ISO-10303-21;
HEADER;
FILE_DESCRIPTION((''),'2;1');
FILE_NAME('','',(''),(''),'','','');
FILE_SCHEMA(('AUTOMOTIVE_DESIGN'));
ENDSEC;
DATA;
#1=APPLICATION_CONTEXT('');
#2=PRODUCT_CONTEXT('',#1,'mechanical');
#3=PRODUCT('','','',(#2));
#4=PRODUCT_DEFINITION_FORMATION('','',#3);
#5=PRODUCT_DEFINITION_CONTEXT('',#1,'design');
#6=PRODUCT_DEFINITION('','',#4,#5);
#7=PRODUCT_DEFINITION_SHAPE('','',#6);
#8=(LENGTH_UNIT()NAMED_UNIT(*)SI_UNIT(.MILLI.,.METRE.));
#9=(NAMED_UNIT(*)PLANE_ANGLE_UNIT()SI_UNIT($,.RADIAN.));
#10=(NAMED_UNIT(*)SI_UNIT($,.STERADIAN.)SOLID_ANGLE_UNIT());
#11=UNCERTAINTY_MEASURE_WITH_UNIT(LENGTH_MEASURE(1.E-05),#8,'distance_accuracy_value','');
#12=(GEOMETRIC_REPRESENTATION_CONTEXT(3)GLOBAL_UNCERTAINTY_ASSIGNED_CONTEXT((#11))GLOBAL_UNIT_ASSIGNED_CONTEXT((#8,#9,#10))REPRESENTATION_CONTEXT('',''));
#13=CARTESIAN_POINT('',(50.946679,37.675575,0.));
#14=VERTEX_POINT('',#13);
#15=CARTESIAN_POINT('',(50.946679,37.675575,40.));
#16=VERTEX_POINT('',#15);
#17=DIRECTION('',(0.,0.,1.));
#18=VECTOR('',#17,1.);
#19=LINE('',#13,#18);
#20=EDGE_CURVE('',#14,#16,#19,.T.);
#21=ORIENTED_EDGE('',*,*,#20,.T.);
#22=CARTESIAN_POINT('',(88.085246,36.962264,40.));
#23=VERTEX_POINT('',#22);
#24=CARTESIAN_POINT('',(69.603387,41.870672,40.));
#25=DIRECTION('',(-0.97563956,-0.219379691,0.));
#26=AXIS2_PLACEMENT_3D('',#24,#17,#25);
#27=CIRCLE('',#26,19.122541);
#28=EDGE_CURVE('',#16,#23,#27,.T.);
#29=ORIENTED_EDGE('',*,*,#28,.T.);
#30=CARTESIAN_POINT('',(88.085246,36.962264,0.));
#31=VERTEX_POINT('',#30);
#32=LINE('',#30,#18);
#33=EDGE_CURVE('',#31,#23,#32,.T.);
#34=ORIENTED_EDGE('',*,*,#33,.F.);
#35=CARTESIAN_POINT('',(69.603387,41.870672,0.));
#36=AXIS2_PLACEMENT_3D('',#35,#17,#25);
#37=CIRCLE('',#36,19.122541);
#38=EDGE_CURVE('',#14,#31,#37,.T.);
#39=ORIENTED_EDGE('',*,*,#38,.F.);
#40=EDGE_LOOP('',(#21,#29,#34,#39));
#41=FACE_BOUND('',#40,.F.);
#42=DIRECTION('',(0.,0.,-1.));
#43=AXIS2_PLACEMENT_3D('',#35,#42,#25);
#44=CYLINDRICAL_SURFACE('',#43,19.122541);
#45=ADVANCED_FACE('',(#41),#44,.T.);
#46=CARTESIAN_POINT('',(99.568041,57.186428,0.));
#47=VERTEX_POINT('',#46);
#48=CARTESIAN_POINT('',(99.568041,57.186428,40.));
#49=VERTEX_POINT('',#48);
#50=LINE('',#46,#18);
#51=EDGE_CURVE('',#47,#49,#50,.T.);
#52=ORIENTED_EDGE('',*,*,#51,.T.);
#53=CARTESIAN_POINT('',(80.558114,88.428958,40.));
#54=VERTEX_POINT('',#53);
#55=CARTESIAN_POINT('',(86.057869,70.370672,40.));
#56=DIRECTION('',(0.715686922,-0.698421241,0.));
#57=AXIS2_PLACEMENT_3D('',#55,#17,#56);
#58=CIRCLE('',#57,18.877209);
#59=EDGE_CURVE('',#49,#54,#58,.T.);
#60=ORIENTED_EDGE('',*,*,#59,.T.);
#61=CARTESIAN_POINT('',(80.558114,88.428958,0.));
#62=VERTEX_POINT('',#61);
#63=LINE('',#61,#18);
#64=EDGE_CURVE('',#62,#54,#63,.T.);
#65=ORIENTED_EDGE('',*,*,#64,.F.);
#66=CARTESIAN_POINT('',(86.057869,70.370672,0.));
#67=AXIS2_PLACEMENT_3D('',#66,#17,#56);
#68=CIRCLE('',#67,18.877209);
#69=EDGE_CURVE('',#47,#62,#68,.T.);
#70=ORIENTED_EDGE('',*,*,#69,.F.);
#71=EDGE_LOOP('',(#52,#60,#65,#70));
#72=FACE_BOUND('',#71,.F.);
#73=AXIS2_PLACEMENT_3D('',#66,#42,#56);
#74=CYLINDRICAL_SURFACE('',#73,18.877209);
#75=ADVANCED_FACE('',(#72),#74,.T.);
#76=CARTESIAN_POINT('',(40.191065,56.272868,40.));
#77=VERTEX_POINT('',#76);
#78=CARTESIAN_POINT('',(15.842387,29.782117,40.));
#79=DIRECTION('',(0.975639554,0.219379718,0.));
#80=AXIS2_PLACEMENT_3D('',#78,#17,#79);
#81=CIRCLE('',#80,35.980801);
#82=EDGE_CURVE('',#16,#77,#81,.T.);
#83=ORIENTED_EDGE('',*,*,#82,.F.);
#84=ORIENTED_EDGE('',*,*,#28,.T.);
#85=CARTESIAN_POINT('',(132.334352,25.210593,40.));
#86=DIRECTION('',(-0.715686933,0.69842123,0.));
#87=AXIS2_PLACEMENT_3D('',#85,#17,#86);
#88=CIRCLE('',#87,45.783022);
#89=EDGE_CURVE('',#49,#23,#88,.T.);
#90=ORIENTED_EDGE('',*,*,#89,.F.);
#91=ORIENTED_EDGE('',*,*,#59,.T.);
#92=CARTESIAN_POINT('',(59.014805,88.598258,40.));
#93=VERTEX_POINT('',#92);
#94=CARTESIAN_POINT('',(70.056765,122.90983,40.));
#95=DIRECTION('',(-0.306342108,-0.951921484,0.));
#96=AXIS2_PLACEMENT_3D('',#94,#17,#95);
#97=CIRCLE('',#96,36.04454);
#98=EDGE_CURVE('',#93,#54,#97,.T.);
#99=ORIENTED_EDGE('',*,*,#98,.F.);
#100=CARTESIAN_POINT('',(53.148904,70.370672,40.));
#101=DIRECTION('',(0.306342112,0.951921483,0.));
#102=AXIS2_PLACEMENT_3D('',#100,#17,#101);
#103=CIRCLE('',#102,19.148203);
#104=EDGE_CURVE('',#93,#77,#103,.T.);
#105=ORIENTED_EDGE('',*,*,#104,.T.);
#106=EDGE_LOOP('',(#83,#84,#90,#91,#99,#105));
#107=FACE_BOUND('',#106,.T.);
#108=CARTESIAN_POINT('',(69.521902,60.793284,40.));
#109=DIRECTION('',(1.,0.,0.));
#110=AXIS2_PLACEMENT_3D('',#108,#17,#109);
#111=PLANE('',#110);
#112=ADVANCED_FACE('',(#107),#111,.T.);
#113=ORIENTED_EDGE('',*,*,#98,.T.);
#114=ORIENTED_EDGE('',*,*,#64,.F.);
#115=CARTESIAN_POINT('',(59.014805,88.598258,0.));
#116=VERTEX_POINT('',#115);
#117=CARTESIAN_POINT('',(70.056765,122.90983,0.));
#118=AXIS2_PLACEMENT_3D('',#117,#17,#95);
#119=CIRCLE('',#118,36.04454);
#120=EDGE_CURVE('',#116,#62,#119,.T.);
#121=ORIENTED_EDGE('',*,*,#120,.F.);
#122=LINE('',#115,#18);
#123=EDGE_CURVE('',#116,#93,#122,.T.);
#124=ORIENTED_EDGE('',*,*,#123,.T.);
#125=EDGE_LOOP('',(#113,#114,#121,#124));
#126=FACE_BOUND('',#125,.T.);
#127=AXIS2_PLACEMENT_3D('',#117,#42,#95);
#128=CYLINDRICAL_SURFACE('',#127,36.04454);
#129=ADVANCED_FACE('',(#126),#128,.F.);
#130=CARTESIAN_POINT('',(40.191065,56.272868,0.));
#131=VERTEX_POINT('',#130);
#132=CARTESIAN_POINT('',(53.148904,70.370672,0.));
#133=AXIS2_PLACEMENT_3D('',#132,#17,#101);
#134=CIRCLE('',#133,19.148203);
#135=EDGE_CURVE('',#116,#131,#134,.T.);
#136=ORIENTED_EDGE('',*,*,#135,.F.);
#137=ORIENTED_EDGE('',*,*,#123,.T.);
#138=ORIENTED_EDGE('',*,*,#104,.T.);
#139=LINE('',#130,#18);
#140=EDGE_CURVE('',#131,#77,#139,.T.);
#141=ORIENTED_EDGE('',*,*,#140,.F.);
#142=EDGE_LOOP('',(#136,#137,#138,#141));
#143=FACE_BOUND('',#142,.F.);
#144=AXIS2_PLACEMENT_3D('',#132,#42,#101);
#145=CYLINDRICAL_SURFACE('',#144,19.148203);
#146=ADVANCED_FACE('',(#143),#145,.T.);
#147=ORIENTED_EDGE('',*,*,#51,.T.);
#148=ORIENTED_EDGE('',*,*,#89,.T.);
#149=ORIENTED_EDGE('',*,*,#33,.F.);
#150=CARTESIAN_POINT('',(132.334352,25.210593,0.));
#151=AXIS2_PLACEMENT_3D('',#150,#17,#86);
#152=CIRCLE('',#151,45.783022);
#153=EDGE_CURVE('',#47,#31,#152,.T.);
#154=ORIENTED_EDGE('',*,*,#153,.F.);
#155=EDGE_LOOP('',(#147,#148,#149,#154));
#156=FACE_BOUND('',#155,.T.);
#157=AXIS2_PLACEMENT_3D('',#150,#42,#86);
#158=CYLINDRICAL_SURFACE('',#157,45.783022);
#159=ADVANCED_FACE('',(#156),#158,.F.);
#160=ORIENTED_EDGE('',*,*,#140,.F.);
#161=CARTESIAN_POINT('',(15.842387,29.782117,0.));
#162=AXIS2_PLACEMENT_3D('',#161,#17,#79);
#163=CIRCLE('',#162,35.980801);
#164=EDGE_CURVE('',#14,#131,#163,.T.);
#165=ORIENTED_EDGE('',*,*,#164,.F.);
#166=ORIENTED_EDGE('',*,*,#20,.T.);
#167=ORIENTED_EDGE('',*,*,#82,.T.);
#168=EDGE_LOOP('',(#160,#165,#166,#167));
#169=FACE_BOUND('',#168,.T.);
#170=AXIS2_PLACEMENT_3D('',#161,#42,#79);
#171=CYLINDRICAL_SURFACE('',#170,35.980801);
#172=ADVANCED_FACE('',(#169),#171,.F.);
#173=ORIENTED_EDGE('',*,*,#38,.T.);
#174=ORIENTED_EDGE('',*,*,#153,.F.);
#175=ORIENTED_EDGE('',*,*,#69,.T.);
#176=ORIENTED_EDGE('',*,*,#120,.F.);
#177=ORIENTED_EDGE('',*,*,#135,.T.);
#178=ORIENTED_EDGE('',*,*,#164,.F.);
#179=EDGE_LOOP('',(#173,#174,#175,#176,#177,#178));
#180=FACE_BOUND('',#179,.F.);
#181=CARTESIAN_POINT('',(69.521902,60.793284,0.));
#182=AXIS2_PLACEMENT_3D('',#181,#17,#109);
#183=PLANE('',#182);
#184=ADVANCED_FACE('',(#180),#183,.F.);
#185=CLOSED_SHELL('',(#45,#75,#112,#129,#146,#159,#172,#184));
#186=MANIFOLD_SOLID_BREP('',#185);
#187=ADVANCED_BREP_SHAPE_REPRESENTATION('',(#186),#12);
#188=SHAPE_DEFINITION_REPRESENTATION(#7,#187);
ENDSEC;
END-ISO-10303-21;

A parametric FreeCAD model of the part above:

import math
import FreeCAD as App
import Part
import Sketcher

V = App.Vector
Q = App.Units.Quantity

doc = App.newDocument("Part")
body = doc.addObject("PartDesign::Body", "Body")

sketch1 = doc.addObject("Sketcher::SketchObject", "Sketch")
body.addObject(sketch1)
sketch1.AttachmentSupport = (doc.XY_Plane, [""])
sketch1.MapMode = "FlatFace"
sketch1.addGeometry([
    Part.ArcOfCircle(Part.Circle(V(86, 70, 0), V(0, 0, 1), 19), math.radians(-44), math.radians(107)),
    Part.ArcOfCircle(Part.Circle(V(70, 123, 0), V(0, 0, 1), 36), math.radians(-108), math.radians(-73)),
    Part.ArcOfCircle(Part.Circle(V(53, 70, 0), V(0, 0, 1), 19), math.radians(72), math.radians(227)),
    Part.ArcOfCircle(Part.Circle(V(16, 30, 0), V(0, 0, 1), 36), math.radians(13), math.radians(47)),
    Part.ArcOfCircle(Part.Circle(V(70, 42, 0), V(0, 0, 1), 19), math.radians(-167), math.radians(-15)),
    Part.ArcOfCircle(Part.Circle(V(132, 25, 0), V(0, 0, 1), 46), math.radians(136), math.radians(165)),
], False)
sketch1.addConstraint([
    Sketcher.Constraint("Tangent", 0, 2, 1, 2),
    Sketcher.Constraint("Tangent", 1, 1, 2, 1),
    Sketcher.Constraint("Tangent", 2, 2, 3, 2),
    Sketcher.Constraint("Tangent", 3, 1, 4, 1),
    Sketcher.Constraint("Tangent", 4, 2, 5, 2),
    Sketcher.Constraint("Tangent", 5, 1, 0, 1),
    Sketcher.Constraint("Horizontal", 0, 3, 2, 3),
    Sketcher.Constraint("Radius", 3, Q("35.980801 mm")),
    Sketcher.Constraint("DistanceY", 4, 3, 0, 3, Q("28.499999 mm")),
    Sketcher.Constraint("Radius", 0, Q("18.877209 mm")),
    Sketcher.Constraint("Radius", 1, Q("36.04454 mm")),
    Sketcher.Constraint("Radius", 4, Q("19.122541 mm")),
    Sketcher.Constraint("Radius", 2, Q("19.148203 mm")),
    Sketcher.Constraint("Radius", 5, Q("45.783022 mm")),
    Sketcher.Constraint("DistanceX", 3, 3, 4, 3, Q("53.761 mm")),
    Sketcher.Constraint("DistanceX", 2, 3, 1, 1, Q("5.865901 mm")),
    Sketcher.Constraint("DistanceX", -1, 1, 0, 3, Q("86.057869 mm")),
    Sketcher.Constraint("DistanceY", -1, 1, 0, 3, Q("70.370672 mm")),
])
pad1 = doc.addObject("PartDesign::Pad", "Pad")
body.addObject(pad1)
pad1.Profile = sketch1
pad1.Length = 40

doc.recompute()
